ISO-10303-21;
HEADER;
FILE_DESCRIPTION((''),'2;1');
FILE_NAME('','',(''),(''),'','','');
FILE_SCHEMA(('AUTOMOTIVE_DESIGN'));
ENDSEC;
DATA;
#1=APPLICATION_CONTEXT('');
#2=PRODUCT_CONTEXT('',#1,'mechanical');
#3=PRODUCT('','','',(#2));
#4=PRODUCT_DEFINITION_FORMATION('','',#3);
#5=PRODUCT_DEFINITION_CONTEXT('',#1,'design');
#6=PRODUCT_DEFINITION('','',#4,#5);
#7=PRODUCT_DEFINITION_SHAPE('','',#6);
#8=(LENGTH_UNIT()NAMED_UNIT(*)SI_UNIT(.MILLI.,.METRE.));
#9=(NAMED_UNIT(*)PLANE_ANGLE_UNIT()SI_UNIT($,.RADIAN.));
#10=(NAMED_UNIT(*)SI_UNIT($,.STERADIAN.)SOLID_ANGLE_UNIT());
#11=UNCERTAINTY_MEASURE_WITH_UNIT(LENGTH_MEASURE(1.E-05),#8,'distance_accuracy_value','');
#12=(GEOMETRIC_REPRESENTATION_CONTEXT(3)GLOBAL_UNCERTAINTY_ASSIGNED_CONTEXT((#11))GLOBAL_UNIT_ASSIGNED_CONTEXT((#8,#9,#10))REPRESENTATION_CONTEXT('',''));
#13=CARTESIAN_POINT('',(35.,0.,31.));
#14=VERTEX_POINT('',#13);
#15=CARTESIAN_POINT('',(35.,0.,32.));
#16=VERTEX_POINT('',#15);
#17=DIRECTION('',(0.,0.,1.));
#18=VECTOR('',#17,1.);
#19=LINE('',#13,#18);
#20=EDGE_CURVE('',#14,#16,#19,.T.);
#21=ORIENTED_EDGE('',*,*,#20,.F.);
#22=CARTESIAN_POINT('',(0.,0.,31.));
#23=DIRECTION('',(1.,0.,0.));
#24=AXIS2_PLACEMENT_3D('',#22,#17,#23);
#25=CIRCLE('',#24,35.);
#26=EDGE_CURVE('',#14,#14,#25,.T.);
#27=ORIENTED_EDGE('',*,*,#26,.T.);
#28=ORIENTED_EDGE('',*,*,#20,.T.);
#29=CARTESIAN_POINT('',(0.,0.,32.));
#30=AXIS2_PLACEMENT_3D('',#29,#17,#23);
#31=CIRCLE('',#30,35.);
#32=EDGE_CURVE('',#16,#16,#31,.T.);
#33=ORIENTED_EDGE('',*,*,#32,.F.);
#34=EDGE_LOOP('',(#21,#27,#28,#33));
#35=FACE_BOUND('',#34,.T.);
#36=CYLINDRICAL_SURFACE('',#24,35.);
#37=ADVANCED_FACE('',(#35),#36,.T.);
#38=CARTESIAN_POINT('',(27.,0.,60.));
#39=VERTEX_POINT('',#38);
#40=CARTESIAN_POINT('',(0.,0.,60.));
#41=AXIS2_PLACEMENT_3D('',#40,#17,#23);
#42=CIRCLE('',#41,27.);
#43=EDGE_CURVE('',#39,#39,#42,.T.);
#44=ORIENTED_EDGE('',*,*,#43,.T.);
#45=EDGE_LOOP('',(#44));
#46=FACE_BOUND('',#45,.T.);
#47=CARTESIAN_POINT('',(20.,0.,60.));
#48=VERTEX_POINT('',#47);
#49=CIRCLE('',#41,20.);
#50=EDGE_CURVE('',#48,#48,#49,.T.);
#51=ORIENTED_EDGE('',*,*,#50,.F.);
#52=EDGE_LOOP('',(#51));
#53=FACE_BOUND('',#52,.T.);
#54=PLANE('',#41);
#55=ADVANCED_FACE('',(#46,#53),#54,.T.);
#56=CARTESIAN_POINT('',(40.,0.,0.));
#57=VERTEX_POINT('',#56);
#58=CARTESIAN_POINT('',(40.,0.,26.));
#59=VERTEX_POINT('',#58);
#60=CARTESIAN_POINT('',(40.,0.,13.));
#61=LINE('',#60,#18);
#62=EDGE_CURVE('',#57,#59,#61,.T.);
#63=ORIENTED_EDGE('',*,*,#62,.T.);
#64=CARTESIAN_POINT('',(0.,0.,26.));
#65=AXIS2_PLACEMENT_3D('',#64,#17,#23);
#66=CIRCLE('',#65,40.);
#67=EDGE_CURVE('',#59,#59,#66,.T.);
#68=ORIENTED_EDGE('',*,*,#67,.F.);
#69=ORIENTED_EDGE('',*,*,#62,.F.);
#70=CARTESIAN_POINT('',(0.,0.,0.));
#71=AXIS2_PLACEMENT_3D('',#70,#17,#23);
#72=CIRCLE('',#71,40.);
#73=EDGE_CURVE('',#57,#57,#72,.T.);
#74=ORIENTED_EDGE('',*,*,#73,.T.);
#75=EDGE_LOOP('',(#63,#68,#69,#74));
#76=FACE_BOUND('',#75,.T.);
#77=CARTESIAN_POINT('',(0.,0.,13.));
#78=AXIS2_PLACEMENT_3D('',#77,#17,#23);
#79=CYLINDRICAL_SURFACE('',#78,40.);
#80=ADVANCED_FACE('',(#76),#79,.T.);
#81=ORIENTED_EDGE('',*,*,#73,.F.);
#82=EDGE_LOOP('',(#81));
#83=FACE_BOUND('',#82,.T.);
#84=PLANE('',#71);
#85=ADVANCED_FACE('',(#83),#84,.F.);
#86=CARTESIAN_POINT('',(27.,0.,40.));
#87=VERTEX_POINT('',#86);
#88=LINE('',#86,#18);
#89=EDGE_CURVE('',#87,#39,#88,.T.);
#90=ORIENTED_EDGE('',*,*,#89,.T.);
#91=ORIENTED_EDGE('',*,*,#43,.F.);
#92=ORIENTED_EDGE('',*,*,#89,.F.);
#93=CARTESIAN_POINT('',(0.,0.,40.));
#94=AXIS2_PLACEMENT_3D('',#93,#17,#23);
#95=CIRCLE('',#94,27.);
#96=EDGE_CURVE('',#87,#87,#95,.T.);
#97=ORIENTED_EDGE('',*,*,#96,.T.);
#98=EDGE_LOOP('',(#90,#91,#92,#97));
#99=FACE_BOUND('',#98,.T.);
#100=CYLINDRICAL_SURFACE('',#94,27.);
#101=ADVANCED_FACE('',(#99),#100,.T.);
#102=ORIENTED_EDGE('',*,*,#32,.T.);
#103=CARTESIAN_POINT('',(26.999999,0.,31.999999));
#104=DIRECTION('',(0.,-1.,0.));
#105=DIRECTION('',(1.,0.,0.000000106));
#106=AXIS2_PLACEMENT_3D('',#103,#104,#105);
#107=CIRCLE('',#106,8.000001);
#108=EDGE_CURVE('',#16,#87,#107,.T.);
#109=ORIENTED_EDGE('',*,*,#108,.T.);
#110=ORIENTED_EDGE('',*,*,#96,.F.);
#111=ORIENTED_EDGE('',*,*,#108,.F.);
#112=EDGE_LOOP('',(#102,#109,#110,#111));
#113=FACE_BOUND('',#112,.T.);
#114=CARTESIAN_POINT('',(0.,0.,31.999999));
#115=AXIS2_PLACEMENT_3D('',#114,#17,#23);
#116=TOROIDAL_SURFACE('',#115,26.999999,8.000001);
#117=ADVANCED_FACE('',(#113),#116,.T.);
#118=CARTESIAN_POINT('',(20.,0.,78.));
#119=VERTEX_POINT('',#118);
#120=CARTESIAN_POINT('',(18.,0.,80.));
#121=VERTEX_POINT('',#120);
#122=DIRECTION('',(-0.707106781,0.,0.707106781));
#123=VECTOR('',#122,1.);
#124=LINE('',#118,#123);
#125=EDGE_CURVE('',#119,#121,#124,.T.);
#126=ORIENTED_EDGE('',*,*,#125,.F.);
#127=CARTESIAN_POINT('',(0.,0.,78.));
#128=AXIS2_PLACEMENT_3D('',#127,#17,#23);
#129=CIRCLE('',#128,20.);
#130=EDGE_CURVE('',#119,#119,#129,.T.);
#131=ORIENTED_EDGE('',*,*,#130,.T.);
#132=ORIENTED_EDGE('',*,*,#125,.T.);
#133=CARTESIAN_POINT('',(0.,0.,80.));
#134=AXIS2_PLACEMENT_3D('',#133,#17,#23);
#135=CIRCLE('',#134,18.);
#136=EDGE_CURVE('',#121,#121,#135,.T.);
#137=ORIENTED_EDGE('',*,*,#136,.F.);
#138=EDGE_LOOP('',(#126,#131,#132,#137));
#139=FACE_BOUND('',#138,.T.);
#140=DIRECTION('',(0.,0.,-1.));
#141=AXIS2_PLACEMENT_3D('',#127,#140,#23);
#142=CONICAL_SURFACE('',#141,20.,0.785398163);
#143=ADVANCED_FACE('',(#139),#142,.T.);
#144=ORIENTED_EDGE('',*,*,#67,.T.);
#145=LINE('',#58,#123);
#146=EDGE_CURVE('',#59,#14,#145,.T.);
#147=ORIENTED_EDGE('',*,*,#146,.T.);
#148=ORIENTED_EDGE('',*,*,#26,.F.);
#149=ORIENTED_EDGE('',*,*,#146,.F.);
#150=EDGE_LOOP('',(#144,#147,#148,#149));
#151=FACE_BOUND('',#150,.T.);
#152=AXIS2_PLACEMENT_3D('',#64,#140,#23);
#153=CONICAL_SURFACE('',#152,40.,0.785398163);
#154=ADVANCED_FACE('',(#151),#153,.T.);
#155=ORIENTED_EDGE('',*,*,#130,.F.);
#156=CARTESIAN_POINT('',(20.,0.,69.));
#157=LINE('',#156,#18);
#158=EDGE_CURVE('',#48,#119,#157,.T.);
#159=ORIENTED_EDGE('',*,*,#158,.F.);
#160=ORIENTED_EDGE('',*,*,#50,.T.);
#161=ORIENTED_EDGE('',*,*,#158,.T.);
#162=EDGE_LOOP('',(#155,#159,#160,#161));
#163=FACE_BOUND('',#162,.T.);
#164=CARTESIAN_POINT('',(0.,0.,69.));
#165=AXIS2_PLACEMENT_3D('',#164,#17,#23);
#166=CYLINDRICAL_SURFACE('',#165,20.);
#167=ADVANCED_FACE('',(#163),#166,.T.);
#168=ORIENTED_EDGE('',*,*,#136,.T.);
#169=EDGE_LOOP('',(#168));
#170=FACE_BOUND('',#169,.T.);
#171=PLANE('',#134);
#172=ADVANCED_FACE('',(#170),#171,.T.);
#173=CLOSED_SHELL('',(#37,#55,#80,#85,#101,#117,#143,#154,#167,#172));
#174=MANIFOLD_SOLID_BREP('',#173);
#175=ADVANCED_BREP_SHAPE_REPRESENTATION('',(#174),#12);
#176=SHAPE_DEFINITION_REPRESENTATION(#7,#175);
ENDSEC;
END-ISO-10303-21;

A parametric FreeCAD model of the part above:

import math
import FreeCAD as App
import Part
import Sketcher

V = App.Vector
Q = App.Units.Quantity

doc = App.newDocument("Part")
body = doc.addObject("PartDesign::Body", "Body")

# Sketch on XZ plane
sketch1 = body.newObject("Sketcher::SketchObject", "Sketch")
sketch1.AttachmentSupport = (doc.getObject("XZ_Plane"), [""])
sketch1.MapMode = "FlatFace"
sketch1.addGeometry(Part.LineSegment(V(0, 0, 0), V(40, 0, 0)), False)
sketch1.addGeometry(Part.LineSegment(V(40, 0, 0), V(40, 26, 0)), False)
sketch1.addGeometry(Part.LineSegment(V(40, 26, 0), V(35, 31, 0)), False)
sketch1.addGeometry(Part.LineSegment(V(35, 31, 0), V(35, 32, 0)), False)
sketch1.addGeometry(Part.ArcOfCircle(Part.Circle(V(26.999999, 31.999999, 0), V(0, 0, 1), 8.000001), math.radians(0.000006), math.radians(89.999994)), False)
sketch1.addGeometry(Part.LineSegment(V(27, 40, 0), V(27, 60, 0)), False)
sketch1.addGeometry(Part.LineSegment(V(27, 60, 0), V(20, 60, 0)), False)
sketch1.addGeometry(Part.LineSegment(V(20, 60, 0), V(20, 78, 0)), False)
sketch1.addGeometry(Part.LineSegment(V(20, 78, 0), V(18, 80, 0)), False)
sketch1.addGeometry(Part.LineSegment(V(18, 80, 0), V(0, 80, 0)), False)
sketch1.addGeometry(Part.LineSegment(V(0, 80, 0), V(0, 0, 0)), False)
sketch1.addConstraint(Sketcher.Constraint("Coincident", 0, 2, 1, 1))
sketch1.addConstraint(Sketcher.Constraint("Coincident", 1, 2, 2, 1))
sketch1.addConstraint(Sketcher.Constraint("Coincident", 2, 2, 3, 1))
sketch1.addConstraint(Sketcher.Constraint("Tangent", 3, 2, 4, 1))
sketch1.addConstraint(Sketcher.Constraint("Coincident", 4, 2, 5, 1))
sketch1.addConstraint(Sketcher.Constraint("Coincident", 5, 2, 6, 1))
sketch1.addConstraint(Sketcher.Constraint("Coincident", 6, 2, 7, 1))
sketch1.addConstraint(Sketcher.Constraint("Coincident", 7, 2, 8, 1))
sketch1.addConstraint(Sketcher.Constraint("Coincident", 8, 2, 9, 1))
sketch1.addConstraint(Sketcher.Constraint("Coincident", 9, 2, 10, 1))
sketch1.addConstraint(Sketcher.Constraint("Coincident", 10, 2, 0, 1))
sketch1.addConstraint(Sketcher.Constraint("Horizontal", 0))
sketch1.addConstraint(Sketcher.Constraint("Vertical", 1))
sketch1.addConstraint(Sketcher.Constraint("Vertical", 3))
sketch1.addConstraint(Sketcher.Constraint("Vertical", 5))
sketch1.addConstraint(Sketcher.Constraint("Horizontal", 6))
sketch1.addConstraint(Sketcher.Constraint("Vertical", 7))
sketch1.addConstraint(Sketcher.Constraint("Horizontal", 9))
sketch1.addConstraint(Sketcher.Constraint("Vertical", 10))
sketch1.addConstraint(Sketcher.Constraint("Coincident", 10, 2, -1, 1))
sketch1.addConstraint(Sketcher.Constraint("Parallel", 2, 8))
sketch1.addConstraint(Sketcher.Constraint("Equal", 9, 7))
sketch1.addConstraint(Sketcher.Constraint("Radius", 4, Q("8.000001 mm")))
sketch1.addConstraint(Sketcher.Constraint("DistanceX", 0, 1, 0, 2, Q("40 mm")))
sketch1.addConstraint(Sketcher.Constraint("DistanceX", 6, 2, 6, 1, Q("7 mm")))
sketch1.addConstraint(Sketcher.Constraint("DistanceX", 9, 2, 9, 1, Q("18 mm")))
sketch1.addConstraint(Sketcher.Constraint("DistanceY", 1, 1, 1, 2, Q("26 mm")))
sketch1.addConstraint(Sketcher.Constraint("DistanceY", 3, 1, 3, 2, Q("1 mm")))
sketch1.addConstraint(Sketcher.Constraint("DistanceY", 5, 1, 5, 2, Q("20 mm")))
sketch1.addConstraint(Sketcher.Constraint("DistanceY", 10, 2, 10, 1, Q("80 mm")))
sketch1.addConstraint(Sketcher.Constraint("Angle", 2, Q("135 deg")))
sketch1.addConstraint(Sketcher.Constraint("DistanceX", -1, 1, 4, 3, Q("26.999999 mm")))
revolution = body.newObject("PartDesign::Revolution", "Revolution")
revolution.Profile = sketch1
revolution.ReferenceAxis = (sketch1, ["V_Axis"])
revolution.Angle = 360

doc.recompute()
